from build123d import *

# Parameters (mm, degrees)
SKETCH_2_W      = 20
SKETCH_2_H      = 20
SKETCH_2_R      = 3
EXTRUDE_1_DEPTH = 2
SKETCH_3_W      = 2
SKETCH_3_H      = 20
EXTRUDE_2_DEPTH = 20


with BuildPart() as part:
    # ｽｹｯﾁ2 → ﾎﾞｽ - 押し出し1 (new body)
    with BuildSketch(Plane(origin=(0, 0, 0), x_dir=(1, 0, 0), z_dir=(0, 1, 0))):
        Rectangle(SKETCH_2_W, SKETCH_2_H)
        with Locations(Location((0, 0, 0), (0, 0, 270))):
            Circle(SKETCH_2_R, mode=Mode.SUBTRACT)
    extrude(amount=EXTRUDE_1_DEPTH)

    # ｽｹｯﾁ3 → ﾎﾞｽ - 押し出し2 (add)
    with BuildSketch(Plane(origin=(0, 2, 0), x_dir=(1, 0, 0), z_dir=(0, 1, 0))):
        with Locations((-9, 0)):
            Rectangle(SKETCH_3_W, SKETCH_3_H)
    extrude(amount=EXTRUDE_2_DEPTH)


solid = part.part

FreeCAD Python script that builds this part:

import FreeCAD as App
import Part
import Sketcher
Q = App.Units.Quantity

doc = App.newDocument("Part")
params = doc.addObject("Spreadsheet::Sheet", "Params")
for row, (alias, value) in enumerate([
    ("sketch1_diameter", "6 mm"),
    ("sketch1_width", "20 mm"),
    ("pad1_length", "2 mm"),
    ("sketch2_width", "2 mm"),
    ("sketch2_height", "20 mm"),
    ("pad2_length", "20 mm"),
], start=1):
    params.set(f"A{row}", alias)
    params.set(f"B{row}", "=" + value)
    params.setAlias(f"B{row}", alias)

body = doc.addObject("PartDesign::Body", "Body")

# Sketch on XZ plane
sketch1 = doc.addObject("Sketcher::SketchObject", "Sketch")
body.addObject(sketch1)
sketch1.AttachmentSupport = (doc.XZ_Plane, [""])
sketch1.MapMode = "FlatFace"
sketch1.addGeometry(Part.LineSegment(App.Vector(-10, -10, 0), App.Vector(-10, 10, 0)), False)
sketch1.addGeometry(Part.LineSegment(App.Vector(-10, 10, 0), App.Vector(10, 10, 0)), False)
sketch1.addGeometry(Part.LineSegment(App.Vector(10, 10, 0), App.Vector(10, -10, 0)), False)
sketch1.addGeometry(Part.LineSegment(App.Vector(10, -10, 0), App.Vector(-10, -10, 0)), False)
sketch1.addGeometry(Part.Circle(App.Vector(0, 0, 0), App.Vector(0, 0, 1), 3), False)
sketch1.addConstraint(Sketcher.Constraint("Coincident", 0, 2, 1, 1))
sketch1.addConstraint(Sketcher.Constraint("Coincident", 1, 2, 2, 1))
sketch1.addConstraint(Sketcher.Constraint("Coincident", 2, 2, 3, 1))
sketch1.addConstraint(Sketcher.Constraint("Coincident", 3, 2, 0, 1))
sketch1.addConstraint(Sketcher.Constraint("Vertical", 0))
sketch1.addConstraint(Sketcher.Constraint("Horizontal", 1))
sketch1.addConstraint(Sketcher.Constraint("Vertical", 2))
sketch1.addConstraint(Sketcher.Constraint("Horizontal", 3))
sketch1.addConstraint(Sketcher.Constraint("Coincident", 4, 3, -1, 1))
sketch1.addConstraint(Sketcher.Constraint("Symmetric", 0, 2, 2, 2, -1, 1))
sketch1.addConstraint(Sketcher.Constraint("Equal", 3, 0))
sketch1.addConstraint(Sketcher.Constraint("Diameter", 4, Q("6 mm")))
sketch1.addConstraint(Sketcher.Constraint("DistanceX", 1, 1, 1, 2, Q("20 mm")))
sketch1.setExpression("Constraints[11]", "Params.sketch1_diameter")
sketch1.setExpression("Constraints[12]", "Params.sketch1_width")
pad1 = doc.addObject("PartDesign::Pad", "Pad")
body.addObject(pad1)
pad1.Profile = sketch1
pad1.setExpression("Length", "Params.pad1_length")
pad1.Reversed = True

# Sketch on XZ plane
sketch2 = doc.addObject("Sketcher::SketchObject", "Sketch001")
body.addObject(sketch2)
sketch2.AttachmentSupport = (doc.XZ_Plane, [""])
sketch2.MapMode = "FlatFace"
sketch2.AttachmentOffset = App.Placement(App.Vector(0, 0, -2), App.Rotation())
sketch2.addGeometry(Part.LineSegment(App.Vector(-10, -10, 0), App.Vector(-10, 10, 0)), False)
sketch2.addGeometry(Part.LineSegment(App.Vector(-10, 10, 0), App.Vector(-8, 10, 0)), False)
sketch2.addGeometry(Part.LineSegment(App.Vector(-8, 10, 0), App.Vector(-8, -10, 0)), False)
sketch2.addGeometry(Part.LineSegment(App.Vector(-8, -10, 0), App.Vector(-10, -10, 0)), False)
sketch2.addConstraint(Sketcher.Constraint("Coincident", 0, 2, 1, 1))
sketch2.addConstraint(Sketcher.Constraint("Coincident", 1, 2, 2, 1))
sketch2.addConstraint(Sketcher.Constraint("Coincident", 2, 2, 3, 1))
sketch2.addConstraint(Sketcher.Constraint("Coincident", 3, 2, 0, 1))
sketch2.addConstraint(Sketcher.Constraint("Vertical", 0))
sketch2.addConstraint(Sketcher.Constraint("Horizontal", 1))
sketch2.addConstraint(Sketcher.Constraint("Vertical", 2))
sketch2.addConstraint(Sketcher.Constraint("Horizontal", 3))
sketch2.addConstraint(Sketcher.Constraint("DistanceX", 1, 1, 1, 2, Q("2 mm")))
sketch2.addConstraint(Sketcher.Constraint("DistanceY", 0, 1, 0, 2, Q("20 mm")))
sketch2.addConstraint(Sketcher.Constraint("DistanceX", 0, 2, -1, 1, Q("10 mm")))
sketch2.addConstraint(Sketcher.Constraint("DistanceY", -1, 1, 0, 2, Q("10 mm")))
sketch2.setExpression("Constraints[8]", "Params.sketch2_width")
sketch2.setExpression("Constraints[9]", "Params.sketch2_height")
pad2 = doc.addObject("PartDesign::Pad", "Pad001")
body.addObject(pad2)
pad2.Profile = sketch2
pad2.setExpression("Length", "Params.pad2_length")
pad2.Reversed = True

doc.recompute()
